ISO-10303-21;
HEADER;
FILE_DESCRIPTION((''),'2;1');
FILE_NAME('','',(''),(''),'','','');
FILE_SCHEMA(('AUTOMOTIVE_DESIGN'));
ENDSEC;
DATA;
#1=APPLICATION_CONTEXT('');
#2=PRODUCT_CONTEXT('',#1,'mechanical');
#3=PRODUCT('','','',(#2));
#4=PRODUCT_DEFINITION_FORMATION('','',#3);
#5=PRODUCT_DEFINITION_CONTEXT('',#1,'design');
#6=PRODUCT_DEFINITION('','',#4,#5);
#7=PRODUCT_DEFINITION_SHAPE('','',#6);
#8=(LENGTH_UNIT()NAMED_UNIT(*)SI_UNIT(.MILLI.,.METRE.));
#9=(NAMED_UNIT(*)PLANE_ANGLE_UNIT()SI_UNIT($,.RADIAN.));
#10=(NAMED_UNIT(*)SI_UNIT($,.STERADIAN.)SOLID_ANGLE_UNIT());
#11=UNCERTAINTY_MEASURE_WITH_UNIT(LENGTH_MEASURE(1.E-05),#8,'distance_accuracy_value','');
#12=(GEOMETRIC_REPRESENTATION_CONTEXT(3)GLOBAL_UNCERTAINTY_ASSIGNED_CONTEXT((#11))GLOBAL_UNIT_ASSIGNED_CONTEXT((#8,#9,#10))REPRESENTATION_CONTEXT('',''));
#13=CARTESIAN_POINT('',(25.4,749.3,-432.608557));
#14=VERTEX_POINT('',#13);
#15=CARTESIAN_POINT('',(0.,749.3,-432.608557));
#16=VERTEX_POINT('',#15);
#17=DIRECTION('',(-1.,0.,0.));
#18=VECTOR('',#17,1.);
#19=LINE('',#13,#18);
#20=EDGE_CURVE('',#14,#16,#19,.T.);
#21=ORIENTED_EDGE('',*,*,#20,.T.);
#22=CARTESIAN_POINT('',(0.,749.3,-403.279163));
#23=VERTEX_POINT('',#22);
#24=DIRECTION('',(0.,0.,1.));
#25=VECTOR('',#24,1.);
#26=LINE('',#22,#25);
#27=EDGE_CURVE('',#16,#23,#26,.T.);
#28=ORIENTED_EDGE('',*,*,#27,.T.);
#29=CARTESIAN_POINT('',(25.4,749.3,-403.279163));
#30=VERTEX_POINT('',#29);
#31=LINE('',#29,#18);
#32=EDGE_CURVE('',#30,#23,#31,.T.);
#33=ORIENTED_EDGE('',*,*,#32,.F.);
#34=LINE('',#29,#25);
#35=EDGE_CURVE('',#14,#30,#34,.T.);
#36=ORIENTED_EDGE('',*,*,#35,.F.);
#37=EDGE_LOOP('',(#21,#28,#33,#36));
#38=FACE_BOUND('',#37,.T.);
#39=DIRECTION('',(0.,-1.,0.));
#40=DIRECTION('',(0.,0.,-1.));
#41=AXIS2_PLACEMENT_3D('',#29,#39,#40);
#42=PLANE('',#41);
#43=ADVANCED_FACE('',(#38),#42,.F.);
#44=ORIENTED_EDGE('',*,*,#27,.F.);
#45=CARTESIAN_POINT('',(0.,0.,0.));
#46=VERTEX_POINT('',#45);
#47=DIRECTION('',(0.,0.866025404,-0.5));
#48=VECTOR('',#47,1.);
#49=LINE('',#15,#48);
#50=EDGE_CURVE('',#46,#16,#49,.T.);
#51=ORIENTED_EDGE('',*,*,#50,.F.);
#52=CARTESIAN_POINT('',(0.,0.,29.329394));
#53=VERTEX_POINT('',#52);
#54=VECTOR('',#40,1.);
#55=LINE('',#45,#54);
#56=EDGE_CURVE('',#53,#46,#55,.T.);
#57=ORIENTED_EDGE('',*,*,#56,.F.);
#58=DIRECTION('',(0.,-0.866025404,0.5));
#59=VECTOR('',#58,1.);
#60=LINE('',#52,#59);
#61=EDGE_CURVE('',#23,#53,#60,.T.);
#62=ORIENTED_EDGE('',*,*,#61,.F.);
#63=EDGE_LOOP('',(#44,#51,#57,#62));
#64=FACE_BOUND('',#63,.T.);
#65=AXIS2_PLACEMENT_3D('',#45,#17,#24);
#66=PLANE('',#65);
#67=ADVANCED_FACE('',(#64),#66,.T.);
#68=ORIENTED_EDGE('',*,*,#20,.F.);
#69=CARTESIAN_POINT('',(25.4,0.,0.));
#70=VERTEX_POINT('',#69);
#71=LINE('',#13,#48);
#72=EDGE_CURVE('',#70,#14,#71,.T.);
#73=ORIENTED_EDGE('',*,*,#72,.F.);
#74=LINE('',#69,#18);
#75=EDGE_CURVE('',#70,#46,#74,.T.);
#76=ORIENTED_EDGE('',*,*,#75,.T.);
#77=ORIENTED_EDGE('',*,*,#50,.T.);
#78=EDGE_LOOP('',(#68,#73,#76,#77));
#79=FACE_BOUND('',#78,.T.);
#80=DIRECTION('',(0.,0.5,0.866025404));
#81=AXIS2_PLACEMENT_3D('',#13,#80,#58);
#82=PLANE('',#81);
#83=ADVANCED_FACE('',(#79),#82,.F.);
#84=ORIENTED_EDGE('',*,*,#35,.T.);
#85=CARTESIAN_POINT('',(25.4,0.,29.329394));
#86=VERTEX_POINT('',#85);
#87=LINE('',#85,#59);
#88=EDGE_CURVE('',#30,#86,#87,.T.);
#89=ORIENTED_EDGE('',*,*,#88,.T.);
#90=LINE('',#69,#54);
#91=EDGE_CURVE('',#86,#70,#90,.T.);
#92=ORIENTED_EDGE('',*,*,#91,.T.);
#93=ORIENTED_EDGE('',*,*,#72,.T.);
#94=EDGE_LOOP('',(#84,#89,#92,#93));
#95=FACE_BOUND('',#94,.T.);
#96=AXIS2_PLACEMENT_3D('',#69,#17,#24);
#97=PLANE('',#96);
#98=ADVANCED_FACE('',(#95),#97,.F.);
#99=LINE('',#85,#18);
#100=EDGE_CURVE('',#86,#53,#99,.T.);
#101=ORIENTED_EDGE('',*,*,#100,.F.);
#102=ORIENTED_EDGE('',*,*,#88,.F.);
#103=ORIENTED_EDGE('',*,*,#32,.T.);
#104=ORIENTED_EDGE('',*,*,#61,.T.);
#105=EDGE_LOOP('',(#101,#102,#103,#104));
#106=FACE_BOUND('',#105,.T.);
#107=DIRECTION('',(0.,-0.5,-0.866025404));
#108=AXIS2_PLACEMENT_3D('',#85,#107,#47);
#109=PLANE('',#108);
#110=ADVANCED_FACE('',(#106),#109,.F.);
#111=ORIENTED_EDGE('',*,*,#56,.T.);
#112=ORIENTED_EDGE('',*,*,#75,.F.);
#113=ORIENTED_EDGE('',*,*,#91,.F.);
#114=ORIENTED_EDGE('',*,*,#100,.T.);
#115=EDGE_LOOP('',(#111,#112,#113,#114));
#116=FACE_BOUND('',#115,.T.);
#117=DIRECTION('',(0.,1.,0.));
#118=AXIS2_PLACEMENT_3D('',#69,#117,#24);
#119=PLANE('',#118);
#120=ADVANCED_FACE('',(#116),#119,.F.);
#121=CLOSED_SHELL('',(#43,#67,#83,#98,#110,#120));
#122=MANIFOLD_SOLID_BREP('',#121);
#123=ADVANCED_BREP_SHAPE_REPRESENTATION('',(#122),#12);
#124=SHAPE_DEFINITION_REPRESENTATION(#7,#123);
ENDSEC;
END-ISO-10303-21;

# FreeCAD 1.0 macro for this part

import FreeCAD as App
import Part
import Sketcher

V = App.Vector
Q = App.Units.Quantity

doc = App.newDocument("Part")
body = doc.addObject("PartDesign::Body", "Body")

sketch1 = body.newObject("Sketcher::SketchObject", "Sketch")
sketch1.AttachmentSupport = (doc.getObject("YZ_Plane"), [""])
sketch1.MapMode = "FlatFace"
sketch1.addGeometry([
    Part.LineSegment(V(0, 29, 0), V(0, 0, 0)),
    Part.LineSegment(V(0, 0, 0), V(749, -433, 0)),
    Part.LineSegment(V(749, -433, 0), V(749, -403, 0)),
    Part.LineSegment(V(749, -403, 0), V(0, 29, 0)),
], False)
sketch1.addConstraint([
    Sketcher.Constraint("Coincident", 0, 2, 1, 1),
    Sketcher.Constraint("Coincident", 1, 2, 2, 1),
    Sketcher.Constraint("Coincident", 2, 2, 3, 1),
    Sketcher.Constraint("Coincident", 3, 2, 0, 1),
    Sketcher.Constraint("Vertical", 0),
    Sketcher.Constraint("Vertical", 2),
    Sketcher.Constraint("Coincident", 0, 2, -1, 1),
    Sketcher.Constraint("Parallel", 1, 3),
    Sketcher.Constraint("Angle", 1, Q("-30 deg")),
    Sketcher.Constraint("DistanceX", -1, 1, 1, 2, Q("29.5 in")),
    Sketcher.Constraint("DistanceY", 0, 2, 0, 1, 29.329394),
])
pad1 = body.newObject("PartDesign::Pad", "Pad")
pad1.Profile = sketch1
pad1.Length = Q("1 in")

doc.recompute()
